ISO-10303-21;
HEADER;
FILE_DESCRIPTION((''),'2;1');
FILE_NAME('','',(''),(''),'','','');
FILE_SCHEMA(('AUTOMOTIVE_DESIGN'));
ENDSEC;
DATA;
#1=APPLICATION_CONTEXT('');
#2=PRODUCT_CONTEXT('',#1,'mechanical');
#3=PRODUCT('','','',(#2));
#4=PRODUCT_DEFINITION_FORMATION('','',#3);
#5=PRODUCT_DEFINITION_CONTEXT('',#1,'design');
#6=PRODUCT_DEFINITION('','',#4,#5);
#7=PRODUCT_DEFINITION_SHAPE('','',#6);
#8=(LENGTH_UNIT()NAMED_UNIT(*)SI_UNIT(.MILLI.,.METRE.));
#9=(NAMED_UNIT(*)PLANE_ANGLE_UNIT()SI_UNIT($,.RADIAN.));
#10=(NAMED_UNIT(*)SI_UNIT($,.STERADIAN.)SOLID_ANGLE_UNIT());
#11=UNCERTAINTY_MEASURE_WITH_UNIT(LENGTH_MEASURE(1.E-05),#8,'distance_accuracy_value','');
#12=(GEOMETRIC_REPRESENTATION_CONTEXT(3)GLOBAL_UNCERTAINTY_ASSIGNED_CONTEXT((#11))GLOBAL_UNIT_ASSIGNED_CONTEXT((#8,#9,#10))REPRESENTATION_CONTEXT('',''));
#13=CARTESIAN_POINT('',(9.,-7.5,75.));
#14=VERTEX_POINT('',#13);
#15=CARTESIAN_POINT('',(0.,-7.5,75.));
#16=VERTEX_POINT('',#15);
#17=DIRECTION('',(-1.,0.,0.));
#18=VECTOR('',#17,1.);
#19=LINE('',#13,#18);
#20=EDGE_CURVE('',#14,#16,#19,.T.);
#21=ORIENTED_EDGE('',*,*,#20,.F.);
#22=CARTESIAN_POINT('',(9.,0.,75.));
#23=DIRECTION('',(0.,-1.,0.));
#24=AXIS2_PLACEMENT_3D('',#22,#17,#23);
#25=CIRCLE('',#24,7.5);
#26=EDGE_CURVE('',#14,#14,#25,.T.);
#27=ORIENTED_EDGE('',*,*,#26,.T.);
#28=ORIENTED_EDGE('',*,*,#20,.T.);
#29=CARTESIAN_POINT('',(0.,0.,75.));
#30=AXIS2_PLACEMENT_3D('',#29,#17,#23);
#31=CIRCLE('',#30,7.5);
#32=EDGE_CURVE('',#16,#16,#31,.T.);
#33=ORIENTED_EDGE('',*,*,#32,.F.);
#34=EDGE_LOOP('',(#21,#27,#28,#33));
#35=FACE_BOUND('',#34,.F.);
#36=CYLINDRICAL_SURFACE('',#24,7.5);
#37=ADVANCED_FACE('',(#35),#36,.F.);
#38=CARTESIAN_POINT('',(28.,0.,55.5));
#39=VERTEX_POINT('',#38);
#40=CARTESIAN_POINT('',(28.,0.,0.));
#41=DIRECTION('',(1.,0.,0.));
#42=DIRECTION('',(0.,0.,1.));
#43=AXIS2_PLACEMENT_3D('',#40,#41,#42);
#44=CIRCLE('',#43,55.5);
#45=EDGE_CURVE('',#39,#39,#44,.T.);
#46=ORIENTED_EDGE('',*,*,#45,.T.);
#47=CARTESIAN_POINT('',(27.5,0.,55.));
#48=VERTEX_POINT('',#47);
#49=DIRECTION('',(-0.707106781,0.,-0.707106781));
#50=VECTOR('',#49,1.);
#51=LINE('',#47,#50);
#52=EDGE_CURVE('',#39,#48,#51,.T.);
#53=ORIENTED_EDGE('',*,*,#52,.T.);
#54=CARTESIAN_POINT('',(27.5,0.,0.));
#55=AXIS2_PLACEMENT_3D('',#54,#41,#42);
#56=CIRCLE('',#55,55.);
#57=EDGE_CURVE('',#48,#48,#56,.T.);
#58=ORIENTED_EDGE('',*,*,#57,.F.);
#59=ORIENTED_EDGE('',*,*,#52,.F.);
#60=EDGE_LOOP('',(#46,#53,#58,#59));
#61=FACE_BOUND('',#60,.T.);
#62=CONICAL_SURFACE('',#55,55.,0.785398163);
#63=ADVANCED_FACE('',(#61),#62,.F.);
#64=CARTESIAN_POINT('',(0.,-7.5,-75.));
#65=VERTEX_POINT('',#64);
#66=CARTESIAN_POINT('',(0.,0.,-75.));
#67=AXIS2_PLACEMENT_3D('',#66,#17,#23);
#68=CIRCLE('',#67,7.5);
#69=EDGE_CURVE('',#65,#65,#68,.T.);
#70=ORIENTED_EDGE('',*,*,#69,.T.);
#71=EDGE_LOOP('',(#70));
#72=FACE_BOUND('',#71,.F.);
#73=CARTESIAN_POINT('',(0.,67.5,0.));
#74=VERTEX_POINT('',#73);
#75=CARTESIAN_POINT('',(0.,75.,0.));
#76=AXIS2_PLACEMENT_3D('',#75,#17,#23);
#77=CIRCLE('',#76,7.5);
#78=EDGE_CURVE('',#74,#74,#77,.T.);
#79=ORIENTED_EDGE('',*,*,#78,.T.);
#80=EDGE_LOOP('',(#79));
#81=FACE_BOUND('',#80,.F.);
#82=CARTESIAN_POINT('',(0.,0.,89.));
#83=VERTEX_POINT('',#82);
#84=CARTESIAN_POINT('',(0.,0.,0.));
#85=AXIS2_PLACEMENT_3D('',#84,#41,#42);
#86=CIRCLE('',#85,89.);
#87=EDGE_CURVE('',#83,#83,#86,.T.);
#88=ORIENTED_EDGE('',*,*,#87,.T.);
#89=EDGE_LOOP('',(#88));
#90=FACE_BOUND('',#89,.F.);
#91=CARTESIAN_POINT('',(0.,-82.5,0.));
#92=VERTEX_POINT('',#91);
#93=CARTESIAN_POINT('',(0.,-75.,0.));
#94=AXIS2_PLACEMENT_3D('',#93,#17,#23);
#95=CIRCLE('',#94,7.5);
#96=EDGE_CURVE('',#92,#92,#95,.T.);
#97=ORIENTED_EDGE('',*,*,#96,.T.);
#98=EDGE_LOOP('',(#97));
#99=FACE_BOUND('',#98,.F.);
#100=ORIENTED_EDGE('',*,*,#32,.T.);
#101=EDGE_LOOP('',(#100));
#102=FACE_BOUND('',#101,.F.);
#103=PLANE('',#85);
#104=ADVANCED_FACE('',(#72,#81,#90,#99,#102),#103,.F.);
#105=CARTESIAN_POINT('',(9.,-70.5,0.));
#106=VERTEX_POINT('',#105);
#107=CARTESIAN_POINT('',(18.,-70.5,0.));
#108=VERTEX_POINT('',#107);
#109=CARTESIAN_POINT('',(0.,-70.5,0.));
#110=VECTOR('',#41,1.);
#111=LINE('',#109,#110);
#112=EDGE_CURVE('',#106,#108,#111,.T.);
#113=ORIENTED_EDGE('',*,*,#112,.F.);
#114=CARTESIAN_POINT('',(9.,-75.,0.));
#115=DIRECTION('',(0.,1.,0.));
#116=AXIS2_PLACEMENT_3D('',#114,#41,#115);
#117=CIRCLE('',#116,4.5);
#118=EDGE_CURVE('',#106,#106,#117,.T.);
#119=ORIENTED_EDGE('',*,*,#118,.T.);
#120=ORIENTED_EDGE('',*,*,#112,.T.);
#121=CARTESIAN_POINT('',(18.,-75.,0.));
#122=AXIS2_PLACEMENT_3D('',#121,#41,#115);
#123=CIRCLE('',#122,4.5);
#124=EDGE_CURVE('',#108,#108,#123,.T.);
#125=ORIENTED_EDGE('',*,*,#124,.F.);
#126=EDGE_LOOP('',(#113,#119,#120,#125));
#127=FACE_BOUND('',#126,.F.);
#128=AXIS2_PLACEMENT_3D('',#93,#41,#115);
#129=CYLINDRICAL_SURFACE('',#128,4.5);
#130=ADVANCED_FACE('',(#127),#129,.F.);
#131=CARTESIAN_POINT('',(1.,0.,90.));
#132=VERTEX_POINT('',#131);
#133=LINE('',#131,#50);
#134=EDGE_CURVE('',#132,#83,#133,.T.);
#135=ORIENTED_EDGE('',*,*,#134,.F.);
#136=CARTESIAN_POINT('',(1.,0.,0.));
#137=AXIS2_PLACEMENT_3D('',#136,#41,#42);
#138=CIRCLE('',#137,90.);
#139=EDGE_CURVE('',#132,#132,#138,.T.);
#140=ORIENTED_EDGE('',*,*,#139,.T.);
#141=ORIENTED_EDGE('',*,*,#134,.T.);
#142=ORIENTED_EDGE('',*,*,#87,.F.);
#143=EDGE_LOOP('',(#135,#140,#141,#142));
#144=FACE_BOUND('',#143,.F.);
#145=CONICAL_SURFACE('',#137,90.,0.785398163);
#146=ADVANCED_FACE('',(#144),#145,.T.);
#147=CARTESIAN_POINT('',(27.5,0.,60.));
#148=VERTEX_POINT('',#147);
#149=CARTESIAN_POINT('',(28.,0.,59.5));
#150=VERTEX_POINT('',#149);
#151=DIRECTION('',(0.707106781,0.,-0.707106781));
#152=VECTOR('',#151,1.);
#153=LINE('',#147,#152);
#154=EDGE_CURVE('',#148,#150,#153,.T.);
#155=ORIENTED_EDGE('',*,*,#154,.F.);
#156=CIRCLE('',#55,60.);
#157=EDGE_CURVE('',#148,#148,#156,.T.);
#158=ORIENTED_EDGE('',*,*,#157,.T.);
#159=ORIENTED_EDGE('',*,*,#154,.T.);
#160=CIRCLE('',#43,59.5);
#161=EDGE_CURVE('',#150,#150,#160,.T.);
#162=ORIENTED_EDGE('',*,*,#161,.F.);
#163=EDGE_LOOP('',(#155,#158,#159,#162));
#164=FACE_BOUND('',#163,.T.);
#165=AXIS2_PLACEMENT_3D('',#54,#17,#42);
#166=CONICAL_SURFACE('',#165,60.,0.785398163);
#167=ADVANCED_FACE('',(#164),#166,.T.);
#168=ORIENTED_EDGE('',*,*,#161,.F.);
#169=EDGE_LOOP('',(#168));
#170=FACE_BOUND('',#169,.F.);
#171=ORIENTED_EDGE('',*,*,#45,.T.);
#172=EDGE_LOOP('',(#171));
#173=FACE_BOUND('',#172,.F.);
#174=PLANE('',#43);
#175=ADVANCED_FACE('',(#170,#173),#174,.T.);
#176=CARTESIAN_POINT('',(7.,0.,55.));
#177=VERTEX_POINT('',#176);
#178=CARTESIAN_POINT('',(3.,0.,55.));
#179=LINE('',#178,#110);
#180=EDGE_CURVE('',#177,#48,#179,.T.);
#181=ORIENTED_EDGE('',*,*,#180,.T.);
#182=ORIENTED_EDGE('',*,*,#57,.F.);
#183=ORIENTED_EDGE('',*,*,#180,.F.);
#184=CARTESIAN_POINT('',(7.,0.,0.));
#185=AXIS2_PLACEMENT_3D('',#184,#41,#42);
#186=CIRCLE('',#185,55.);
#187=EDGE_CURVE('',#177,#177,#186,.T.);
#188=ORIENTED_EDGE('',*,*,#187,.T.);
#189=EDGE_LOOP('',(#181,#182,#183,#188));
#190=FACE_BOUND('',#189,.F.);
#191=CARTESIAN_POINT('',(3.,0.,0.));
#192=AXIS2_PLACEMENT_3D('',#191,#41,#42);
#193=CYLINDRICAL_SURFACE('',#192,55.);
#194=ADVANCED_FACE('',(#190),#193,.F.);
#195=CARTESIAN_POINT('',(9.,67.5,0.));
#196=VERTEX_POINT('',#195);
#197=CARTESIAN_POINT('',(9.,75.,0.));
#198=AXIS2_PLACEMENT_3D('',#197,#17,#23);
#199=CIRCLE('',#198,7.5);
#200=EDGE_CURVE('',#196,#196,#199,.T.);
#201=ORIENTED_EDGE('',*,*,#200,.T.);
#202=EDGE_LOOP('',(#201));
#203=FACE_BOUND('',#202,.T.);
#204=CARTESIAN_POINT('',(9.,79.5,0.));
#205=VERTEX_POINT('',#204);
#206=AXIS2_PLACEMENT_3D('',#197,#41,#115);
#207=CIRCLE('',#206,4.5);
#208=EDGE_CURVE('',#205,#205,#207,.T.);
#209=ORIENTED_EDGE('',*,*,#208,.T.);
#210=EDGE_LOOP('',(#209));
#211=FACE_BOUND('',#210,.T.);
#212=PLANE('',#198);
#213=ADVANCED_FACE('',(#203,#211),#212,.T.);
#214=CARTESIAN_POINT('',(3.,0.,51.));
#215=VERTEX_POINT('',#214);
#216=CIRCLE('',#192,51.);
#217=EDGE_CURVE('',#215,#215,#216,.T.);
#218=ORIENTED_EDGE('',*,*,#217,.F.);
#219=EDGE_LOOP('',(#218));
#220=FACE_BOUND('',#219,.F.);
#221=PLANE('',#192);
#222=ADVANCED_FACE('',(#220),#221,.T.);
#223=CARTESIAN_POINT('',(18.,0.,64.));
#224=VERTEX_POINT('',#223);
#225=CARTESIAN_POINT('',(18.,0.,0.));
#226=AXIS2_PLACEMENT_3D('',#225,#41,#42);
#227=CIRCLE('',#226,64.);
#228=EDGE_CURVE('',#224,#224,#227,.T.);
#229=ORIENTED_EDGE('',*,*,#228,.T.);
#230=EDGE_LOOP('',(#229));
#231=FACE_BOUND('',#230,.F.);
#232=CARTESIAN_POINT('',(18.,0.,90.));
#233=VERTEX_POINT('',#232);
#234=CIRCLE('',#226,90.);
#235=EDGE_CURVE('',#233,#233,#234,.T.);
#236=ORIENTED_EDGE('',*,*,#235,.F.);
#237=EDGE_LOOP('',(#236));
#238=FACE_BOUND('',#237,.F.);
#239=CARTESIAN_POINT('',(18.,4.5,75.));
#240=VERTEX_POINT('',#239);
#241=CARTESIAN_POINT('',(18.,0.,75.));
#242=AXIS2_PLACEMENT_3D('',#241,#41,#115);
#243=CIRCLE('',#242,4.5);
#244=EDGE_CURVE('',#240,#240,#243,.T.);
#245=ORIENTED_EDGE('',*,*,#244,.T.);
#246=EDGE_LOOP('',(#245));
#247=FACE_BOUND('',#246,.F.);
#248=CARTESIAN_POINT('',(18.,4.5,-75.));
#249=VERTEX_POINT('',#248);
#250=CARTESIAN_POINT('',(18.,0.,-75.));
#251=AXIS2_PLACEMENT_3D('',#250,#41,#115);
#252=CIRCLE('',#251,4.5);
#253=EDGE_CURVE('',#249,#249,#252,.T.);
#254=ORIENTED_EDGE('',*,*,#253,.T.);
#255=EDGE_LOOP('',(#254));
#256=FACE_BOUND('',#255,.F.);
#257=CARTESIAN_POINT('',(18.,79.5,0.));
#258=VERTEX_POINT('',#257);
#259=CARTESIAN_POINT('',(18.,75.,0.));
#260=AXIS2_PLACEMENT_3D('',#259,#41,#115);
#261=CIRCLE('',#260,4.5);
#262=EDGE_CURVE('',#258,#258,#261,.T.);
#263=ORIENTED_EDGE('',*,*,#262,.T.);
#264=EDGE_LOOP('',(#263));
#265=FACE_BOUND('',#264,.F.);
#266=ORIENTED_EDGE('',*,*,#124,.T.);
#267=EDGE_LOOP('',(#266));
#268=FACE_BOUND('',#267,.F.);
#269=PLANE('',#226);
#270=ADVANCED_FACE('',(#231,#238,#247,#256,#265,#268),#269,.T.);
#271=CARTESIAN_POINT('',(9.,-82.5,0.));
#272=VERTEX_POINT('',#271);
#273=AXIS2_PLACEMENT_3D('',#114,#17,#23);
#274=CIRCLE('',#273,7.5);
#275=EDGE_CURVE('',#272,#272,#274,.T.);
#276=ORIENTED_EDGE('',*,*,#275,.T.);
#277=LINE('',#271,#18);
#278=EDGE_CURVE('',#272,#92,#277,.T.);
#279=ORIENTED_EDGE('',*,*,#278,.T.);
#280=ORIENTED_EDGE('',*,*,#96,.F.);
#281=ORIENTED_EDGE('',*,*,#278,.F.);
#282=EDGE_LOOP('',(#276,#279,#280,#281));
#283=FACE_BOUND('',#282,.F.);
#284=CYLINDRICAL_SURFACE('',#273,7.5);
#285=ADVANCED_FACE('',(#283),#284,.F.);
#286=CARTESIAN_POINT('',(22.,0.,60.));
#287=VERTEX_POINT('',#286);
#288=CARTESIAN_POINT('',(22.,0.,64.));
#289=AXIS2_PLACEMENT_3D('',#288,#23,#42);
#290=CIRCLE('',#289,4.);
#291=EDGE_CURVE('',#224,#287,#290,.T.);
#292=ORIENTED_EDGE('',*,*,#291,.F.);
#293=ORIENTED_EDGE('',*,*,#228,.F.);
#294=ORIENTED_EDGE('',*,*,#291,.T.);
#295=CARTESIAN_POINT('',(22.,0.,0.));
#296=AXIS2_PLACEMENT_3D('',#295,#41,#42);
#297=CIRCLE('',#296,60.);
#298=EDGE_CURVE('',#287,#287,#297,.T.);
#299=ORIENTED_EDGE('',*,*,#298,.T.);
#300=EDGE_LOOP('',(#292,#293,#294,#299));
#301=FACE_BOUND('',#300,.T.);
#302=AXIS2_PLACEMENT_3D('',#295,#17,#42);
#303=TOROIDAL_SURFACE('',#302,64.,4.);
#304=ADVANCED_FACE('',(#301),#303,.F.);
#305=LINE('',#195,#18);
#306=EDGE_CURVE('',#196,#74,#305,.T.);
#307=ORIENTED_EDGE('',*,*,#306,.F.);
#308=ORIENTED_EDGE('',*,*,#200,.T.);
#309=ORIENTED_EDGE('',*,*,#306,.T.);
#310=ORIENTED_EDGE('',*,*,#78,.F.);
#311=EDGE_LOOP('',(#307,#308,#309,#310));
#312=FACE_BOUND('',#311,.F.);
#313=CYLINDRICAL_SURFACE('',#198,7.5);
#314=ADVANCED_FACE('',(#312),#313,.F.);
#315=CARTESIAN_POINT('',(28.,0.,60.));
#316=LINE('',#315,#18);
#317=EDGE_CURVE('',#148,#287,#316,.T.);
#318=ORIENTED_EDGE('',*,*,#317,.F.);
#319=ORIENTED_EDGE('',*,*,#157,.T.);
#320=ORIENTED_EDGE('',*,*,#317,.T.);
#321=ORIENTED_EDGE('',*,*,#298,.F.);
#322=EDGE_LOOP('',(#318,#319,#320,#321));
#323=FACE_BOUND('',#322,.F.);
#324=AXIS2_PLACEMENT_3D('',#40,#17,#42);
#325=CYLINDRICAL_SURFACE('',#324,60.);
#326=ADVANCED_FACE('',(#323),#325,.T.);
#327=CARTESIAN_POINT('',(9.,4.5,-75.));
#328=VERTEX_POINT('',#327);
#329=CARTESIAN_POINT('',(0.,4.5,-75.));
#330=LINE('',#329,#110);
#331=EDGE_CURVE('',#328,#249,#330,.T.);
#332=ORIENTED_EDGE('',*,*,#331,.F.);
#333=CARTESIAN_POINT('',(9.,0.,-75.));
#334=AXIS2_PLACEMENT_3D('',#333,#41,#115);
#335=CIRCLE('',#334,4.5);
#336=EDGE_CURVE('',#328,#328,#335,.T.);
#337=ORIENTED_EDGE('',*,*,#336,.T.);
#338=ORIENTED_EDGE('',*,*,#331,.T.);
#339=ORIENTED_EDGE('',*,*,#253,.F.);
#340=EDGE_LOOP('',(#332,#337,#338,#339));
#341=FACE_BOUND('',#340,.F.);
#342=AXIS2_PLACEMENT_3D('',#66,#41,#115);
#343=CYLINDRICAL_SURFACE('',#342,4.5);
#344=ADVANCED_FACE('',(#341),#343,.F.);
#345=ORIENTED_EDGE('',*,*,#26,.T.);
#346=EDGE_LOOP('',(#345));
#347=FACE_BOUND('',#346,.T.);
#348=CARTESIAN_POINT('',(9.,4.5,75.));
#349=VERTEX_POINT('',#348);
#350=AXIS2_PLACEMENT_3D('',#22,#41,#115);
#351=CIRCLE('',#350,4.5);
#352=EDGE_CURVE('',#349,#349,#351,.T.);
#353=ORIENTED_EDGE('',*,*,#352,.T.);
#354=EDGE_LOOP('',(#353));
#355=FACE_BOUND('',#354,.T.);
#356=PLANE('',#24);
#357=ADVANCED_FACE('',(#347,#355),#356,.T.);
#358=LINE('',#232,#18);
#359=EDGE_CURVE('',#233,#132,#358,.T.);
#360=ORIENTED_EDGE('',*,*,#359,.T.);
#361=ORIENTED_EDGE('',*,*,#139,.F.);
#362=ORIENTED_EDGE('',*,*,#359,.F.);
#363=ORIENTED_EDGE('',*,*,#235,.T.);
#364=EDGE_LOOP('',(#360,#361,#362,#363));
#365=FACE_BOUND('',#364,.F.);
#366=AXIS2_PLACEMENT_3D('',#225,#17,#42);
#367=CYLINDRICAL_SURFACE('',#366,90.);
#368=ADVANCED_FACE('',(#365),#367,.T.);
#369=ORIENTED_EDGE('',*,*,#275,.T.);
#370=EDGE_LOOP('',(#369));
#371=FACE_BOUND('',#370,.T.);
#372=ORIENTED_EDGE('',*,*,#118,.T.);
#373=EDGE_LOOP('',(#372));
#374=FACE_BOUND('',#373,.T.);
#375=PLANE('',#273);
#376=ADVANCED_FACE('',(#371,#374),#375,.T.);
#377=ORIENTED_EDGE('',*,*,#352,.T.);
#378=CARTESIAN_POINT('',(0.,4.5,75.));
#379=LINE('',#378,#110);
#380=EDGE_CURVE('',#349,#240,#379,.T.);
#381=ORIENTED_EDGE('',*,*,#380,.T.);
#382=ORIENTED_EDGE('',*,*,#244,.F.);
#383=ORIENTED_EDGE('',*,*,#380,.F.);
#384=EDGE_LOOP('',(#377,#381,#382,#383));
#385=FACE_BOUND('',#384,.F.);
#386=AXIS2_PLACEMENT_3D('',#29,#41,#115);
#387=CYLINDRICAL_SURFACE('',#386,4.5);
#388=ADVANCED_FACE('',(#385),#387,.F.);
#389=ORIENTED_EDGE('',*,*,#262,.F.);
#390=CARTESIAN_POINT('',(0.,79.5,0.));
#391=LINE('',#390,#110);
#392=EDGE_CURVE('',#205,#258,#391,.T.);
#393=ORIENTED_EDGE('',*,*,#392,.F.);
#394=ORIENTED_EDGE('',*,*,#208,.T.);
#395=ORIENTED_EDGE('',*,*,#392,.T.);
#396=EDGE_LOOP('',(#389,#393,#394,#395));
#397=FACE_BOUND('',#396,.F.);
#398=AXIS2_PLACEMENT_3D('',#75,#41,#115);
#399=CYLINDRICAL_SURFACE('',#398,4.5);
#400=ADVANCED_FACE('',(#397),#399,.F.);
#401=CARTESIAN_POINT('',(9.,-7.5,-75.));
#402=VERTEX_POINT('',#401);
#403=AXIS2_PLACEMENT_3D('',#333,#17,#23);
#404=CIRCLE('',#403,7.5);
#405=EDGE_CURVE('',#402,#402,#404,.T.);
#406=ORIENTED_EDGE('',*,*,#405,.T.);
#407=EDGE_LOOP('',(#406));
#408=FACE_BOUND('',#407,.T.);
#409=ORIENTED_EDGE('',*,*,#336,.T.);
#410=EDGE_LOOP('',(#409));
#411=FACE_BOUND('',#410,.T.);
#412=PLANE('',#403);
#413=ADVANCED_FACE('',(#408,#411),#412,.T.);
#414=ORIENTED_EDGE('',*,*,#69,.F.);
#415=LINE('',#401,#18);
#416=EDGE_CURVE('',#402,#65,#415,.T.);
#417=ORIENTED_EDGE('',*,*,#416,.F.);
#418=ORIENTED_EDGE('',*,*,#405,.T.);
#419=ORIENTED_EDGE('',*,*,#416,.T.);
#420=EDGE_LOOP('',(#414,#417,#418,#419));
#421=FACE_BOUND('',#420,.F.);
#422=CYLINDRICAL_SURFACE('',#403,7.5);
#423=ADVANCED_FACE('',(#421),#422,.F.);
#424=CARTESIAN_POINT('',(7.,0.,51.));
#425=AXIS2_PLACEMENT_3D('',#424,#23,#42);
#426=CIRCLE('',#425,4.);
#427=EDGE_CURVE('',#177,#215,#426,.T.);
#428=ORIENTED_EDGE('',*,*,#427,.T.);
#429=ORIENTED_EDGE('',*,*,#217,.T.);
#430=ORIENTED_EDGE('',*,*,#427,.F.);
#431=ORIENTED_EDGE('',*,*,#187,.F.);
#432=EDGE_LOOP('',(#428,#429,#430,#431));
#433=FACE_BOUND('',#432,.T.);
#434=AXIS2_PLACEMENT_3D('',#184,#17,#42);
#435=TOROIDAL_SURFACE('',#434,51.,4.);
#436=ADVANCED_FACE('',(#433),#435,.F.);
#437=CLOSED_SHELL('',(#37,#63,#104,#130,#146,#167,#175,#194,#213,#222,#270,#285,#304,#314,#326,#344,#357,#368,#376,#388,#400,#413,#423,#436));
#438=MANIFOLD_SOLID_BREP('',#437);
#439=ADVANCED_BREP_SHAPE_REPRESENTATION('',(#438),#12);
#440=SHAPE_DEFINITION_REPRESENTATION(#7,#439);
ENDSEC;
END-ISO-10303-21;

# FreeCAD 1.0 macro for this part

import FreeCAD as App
import Part
import Sketcher

V = App.Vector
Q = App.Units.Quantity


def edges_at(feature, points):
    """Names of the edges that pass closest to the given points."""
    edges = feature.Shape.Edges
    near = lambda p: min(range(len(edges)), key=lambda i: edges[i].distToShape(Part.Vertex(*p))[0])
    return sorted({f"Edge{near(p) + 1}" for p in points})


def add_polygon(sketch, points):
    """Adds a closed chain of lines whose ends are joined by coincident constraints."""
    first, n = sketch.GeometryCount, len(points)
    for a, b in zip(points, points[1:] + points[:1]):
        sketch.addGeometry(Part.LineSegment(App.Vector(*a, 0), App.Vector(*b, 0)), False)
    for i in range(n):
        sketch.addConstraint(Sketcher.Constraint("Coincident", first + i, 2, first + (i + 1) % n, 1))

doc = App.newDocument("Part")
params = doc.addObject("Spreadsheet::Sheet", "Params")
for row, (alias, value) in enumerate([
    ("sketch1_width", "18 mm"),
    ("sketch1_width2", "3 mm"),
    ("sketch1_width3", "25 mm"),
    ("sketch1_height", "90 mm"),
    ("sketch1_height2", "55 mm"),
    ("revolution_angle", "360 deg"),
    ("sketch2_diameter", "9 mm"),
    ("hole_diameter", "9 mm"),
    ("hole_depth", "18 mm"),
    ("hole_cbore_diameter", "15 mm"),
    ("hole_cbore_depth", "9 mm"),
    ("fillet_radius", "4 mm"),
    ("chamfer_size", "0.5 mm"),
    ("fillet2_radius", "4 mm"),
    ("chamfer2_size", "1 mm"),
], start=1):
    params.set(f"A{row}", alias)
    params.set(f"B{row}", "=" + value)
    params.setAlias(f"B{row}", alias)

body = doc.addObject("PartDesign::Body", "Body")

# Sketch on XZ plane
sketch1 = body.newObject("Sketcher::SketchObject", "Sketch")
sketch1.AttachmentSupport = (doc.getObject("XZ_Plane"), [""])
sketch1.MapMode = "FlatFace"
add_polygon(sketch1, [(18, 90), (0, 90), (0, 0), (3, 0), (3, 55), (28, 55), (28, 60), (18, 60)])  # lines 0-7
sketch1.addConstraint([
    Sketcher.Constraint("Horizontal", 0),
    Sketcher.Constraint("Vertical", 1),
    Sketcher.Constraint("Horizontal", 2),
    Sketcher.Constraint("Vertical", 3),
    Sketcher.Constraint("Horizontal", 4),
    Sketcher.Constraint("Vertical", 5),
    Sketcher.Constraint("Horizontal", 6),
    Sketcher.Constraint("Vertical", 7),
    Sketcher.Constraint("Coincident", 1, 2, -1, 1),
    Sketcher.Constraint("DistanceX", 0, 2, 0, 1, Q("18 mm")),
    Sketcher.Constraint("DistanceX", 2, 1, 2, 2, Q("3 mm")),
    Sketcher.Constraint("DistanceX", 4, 1, 4, 2, Q("25 mm")),
    Sketcher.Constraint("DistanceY", 1, 2, 1, 1, Q("90 mm")),
    Sketcher.Constraint("DistanceY", 3, 1, 3, 2, Q("55 mm")),
    Sketcher.Constraint("DistanceY", 5, 1, 5, 2, Q("5 mm")),
])
sketch1.setExpression("Constraints[17]", "Params.sketch1_width")
sketch1.setExpression("Constraints[18]", "Params.sketch1_width2")
sketch1.setExpression("Constraints[19]", "Params.sketch1_width3")
sketch1.setExpression("Constraints[20]", "Params.sketch1_height")
sketch1.setExpression("Constraints[21]", "Params.sketch1_height2")
revolution = body.newObject("PartDesign::Revolution", "Revolution")
revolution.Profile = sketch1
revolution.ReferenceAxis = (sketch1, ["H_Axis"])
revolution.setExpression("Angle", "Params.revolution_angle")

# Sketch on YZ plane
sketch2 = body.newObject("Sketcher::SketchObject", "Sketch001")
sketch2.AttachmentSupport = (doc.getObject("YZ_Plane"), [""])
sketch2.MapMode = "FlatFace"
sketch2.addGeometry([
    Part.Circle(V(0, 75, 0), V(0, 0, 1), 4.5),
    Part.Circle(V(-75, 0, 0), V(0, 0, 1), 4.5),
    Part.Circle(V(0, -75, 0), V(0, 0, 1), 4.5),
    Part.Circle(V(75, 0, 0), V(0, 0, 1), 4.5),
], False)
sketch2.addConstraint([
    Sketcher.Constraint("Equal", 0, 1),
    Sketcher.Constraint("Equal", 1, 2),
    Sketcher.Constraint("Equal", 2, 3),
    Sketcher.Constraint("Symmetric", 0, 3, 2, 3, -1, 1),
    Sketcher.Constraint("Symmetric", 1, 3, 3, 3, -1, 1),
    Sketcher.Constraint("PointOnObject", 0, 3, -2),
    Sketcher.Constraint("PointOnObject", 1, 3, -1),
    Sketcher.Constraint("Diameter", 0, Q("9 mm")),
    Sketcher.Constraint("DistanceY", -1, 1, 0, 3, Q("75 mm")),
    Sketcher.Constraint("DistanceX", 1, 3, -1, 1, Q("75 mm")),
])
sketch2.setExpression("Constraints[7]", "Params.sketch2_diameter")
doc.recompute()
hole = body.newObject("PartDesign::Hole", "Hole")
hole.Profile = sketch2
hole.ThreadType = "None"
hole.setExpression("Diameter", "Params.hole_diameter")
hole.DepthType = "Dimension"
hole.setExpression("Depth", "Params.hole_depth")
hole.DrillPoint = "Flat"
hole.HoleCutType = "Counterbore"
hole.setExpression("HoleCutDiameter", "Params.hole_cbore_diameter")
hole.setExpression("HoleCutDepth", "Params.hole_cbore_depth")
hole.Reversed = True
doc.recompute()

fillet = body.newObject("PartDesign::Fillet", "Fillet")
fillet.Base = (hole, edges_at(hole, [(18, 0, -60)]))
fillet.setExpression("Radius", "Params.fillet_radius")
doc.recompute()

chamfer = body.newObject("PartDesign::Chamfer", "Chamfer")
chamfer.Base = (fillet, edges_at(fillet, [(28, 0, -60), (28, 0, -55)]))
chamfer.setExpression("Size", "Params.chamfer_size")
doc.recompute()

fillet2 = body.newObject("PartDesign::Fillet", "Fillet001")
fillet2.Base = (chamfer, edges_at(chamfer, [(3, 0, -55)]))
fillet2.setExpression("Radius", "Params.fillet2_radius")
doc.recompute()

chamfer2 = body.newObject("PartDesign::Chamfer", "Chamfer001")
chamfer2.Base = (fillet2, edges_at(fillet2, [(0, 0, -90)]))
chamfer2.setExpression("Size", "Params.chamfer2_size")

doc.recompute()
